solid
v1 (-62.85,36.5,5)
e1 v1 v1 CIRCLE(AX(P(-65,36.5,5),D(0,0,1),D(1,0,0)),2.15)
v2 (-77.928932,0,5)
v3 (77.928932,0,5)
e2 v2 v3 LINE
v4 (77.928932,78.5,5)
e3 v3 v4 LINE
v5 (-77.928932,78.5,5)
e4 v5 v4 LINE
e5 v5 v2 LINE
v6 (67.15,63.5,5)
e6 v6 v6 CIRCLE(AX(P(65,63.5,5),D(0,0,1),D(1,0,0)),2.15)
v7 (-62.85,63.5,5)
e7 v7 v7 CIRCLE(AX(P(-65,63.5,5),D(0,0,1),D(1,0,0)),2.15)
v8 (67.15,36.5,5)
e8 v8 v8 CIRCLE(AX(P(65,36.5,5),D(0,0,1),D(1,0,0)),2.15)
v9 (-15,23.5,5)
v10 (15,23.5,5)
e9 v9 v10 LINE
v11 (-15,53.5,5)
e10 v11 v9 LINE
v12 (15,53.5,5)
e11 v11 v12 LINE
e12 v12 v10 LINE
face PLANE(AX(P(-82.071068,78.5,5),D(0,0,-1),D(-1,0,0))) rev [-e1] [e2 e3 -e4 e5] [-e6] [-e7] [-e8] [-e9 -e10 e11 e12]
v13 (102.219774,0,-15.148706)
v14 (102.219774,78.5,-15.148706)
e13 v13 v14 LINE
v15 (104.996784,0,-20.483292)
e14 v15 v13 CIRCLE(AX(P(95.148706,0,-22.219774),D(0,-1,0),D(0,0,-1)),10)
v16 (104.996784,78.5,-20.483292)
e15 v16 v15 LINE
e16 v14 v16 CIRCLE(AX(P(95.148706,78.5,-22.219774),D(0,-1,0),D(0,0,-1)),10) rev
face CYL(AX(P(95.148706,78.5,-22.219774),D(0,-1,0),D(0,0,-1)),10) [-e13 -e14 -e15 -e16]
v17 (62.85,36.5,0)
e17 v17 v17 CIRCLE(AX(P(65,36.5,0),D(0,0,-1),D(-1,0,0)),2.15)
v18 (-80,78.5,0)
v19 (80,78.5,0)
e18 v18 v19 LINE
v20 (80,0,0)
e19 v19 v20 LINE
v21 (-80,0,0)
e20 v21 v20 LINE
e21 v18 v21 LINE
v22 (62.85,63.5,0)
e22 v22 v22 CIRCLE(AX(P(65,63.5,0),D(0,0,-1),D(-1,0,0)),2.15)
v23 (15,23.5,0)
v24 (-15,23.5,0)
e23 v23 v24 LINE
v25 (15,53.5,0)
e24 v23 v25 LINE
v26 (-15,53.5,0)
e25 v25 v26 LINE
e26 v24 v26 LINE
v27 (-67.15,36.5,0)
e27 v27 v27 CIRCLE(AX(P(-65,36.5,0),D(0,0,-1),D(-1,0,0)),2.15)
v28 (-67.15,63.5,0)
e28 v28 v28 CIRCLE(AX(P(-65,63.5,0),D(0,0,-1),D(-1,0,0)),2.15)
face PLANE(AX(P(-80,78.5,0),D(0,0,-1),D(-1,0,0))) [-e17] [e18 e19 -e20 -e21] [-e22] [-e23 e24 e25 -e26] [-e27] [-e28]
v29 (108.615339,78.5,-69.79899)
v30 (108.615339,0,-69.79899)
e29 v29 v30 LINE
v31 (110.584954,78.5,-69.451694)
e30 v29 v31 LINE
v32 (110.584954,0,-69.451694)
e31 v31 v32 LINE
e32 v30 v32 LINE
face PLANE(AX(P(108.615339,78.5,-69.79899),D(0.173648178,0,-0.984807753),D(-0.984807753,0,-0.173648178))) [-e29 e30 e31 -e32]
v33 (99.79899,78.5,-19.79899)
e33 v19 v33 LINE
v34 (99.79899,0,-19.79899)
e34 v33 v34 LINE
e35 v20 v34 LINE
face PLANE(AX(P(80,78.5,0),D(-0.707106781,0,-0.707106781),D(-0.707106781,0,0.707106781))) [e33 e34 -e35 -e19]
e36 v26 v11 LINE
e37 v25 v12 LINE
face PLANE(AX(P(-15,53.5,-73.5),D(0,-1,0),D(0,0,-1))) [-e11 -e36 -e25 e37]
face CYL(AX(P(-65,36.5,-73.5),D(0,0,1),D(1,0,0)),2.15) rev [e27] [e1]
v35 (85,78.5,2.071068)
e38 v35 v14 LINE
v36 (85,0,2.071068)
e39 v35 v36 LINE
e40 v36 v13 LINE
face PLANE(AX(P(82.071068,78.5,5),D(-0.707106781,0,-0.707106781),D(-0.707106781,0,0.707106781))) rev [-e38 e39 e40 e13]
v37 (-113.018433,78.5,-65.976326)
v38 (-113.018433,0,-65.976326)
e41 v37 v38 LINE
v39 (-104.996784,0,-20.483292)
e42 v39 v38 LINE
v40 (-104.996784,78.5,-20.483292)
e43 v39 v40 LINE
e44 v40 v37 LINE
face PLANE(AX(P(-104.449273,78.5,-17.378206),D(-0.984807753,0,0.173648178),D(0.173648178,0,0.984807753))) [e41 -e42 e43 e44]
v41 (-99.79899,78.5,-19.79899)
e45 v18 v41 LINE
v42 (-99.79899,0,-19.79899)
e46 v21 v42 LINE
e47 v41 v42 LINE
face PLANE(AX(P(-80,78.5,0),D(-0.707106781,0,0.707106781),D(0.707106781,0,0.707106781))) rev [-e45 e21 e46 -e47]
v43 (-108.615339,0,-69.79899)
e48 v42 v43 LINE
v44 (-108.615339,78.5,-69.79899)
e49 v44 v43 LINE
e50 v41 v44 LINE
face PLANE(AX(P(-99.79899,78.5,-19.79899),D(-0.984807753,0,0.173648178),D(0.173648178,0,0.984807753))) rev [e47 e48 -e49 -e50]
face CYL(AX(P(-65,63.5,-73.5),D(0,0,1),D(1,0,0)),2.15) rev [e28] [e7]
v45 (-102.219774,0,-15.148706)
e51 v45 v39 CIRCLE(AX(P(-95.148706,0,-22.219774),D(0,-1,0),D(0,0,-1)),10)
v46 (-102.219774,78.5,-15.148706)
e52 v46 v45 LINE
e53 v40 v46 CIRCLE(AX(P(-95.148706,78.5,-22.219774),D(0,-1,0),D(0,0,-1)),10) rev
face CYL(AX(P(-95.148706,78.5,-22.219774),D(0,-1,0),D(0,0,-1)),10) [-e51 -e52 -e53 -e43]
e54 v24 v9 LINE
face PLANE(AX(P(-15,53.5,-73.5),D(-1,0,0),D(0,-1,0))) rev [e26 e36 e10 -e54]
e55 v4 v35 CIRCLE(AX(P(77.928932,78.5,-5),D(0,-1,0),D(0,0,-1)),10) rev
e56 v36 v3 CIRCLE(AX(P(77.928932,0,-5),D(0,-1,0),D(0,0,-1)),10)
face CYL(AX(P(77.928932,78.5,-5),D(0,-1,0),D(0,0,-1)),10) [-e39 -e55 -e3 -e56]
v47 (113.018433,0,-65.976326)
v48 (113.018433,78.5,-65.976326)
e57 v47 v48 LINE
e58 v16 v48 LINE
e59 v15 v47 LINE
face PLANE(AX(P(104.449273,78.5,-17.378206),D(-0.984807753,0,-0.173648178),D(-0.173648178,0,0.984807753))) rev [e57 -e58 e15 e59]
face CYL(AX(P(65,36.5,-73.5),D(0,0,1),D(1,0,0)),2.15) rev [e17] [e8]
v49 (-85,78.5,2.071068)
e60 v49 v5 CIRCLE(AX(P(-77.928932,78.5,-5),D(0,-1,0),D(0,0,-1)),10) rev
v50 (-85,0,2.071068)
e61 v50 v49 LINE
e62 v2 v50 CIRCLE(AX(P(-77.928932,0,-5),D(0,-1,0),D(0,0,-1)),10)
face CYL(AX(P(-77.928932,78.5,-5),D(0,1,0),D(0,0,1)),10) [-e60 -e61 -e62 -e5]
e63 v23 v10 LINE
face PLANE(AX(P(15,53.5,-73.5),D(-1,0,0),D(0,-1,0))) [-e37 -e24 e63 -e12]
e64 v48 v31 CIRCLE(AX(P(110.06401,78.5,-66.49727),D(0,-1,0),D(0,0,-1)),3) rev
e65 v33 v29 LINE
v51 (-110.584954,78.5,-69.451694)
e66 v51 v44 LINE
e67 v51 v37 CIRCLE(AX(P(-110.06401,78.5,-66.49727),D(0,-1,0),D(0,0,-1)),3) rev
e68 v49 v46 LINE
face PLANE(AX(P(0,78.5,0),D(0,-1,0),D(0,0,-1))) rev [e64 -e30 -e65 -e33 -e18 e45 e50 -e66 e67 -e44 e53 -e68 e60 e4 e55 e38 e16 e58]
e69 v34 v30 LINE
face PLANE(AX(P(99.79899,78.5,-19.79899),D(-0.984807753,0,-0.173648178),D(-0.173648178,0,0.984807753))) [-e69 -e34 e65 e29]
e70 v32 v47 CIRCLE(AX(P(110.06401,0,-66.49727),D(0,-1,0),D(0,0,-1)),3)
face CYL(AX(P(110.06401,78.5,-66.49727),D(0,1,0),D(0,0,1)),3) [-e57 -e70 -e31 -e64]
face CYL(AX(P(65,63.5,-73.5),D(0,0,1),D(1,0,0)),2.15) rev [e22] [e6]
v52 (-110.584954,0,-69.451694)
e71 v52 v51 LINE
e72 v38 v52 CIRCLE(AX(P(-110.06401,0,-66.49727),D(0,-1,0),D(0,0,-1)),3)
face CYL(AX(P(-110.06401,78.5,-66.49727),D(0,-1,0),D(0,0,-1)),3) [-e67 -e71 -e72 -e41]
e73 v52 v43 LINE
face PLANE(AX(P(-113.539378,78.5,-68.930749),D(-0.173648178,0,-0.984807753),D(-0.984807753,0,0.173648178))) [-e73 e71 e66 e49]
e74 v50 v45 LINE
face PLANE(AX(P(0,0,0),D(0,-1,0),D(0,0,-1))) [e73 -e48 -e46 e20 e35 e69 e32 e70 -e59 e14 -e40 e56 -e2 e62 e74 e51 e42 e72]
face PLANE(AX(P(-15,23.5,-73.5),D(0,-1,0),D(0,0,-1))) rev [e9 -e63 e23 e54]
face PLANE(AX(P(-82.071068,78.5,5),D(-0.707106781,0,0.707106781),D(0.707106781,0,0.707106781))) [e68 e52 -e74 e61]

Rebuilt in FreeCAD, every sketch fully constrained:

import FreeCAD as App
import Part
import Sketcher

V = App.Vector
Q = App.Units.Quantity


def edges_at(feature, points):
    """Names of the edges that pass closest to the given points."""
    edges = feature.Shape.Edges
    near = lambda p: min(range(len(edges)), key=lambda i: edges[i].distToShape(Part.Vertex(*p))[0])
    return sorted({f"Edge{near(p) + 1}" for p in points})

doc = App.newDocument("Part")
body = doc.addObject("PartDesign::Body", "Body")

sketch1 = body.newObject("Sketcher::SketchObject", "Sketch")
sketch1.AttachmentSupport = (doc.getObject("XZ_Plane"), [""])
sketch1.MapMode = "FlatFace"
sketch1.addGeometry([
    Part.LineSegment(V(80, 0, 0), V(-80, 0, 0)),
    Part.LineSegment(V(-80, 0, 0), V(-99.8, -19.8, 0)),
    Part.LineSegment(V(-99.8, -19.8, 0), V(-108.6, -69.8, 0)),
    Part.LineSegment(V(-108.6, -69.8, 0), V(-113.5, -68.9, 0)),
    Part.LineSegment(V(-113.5, -68.9, 0), V(-104.4, -17.4, 0)),
    Part.LineSegment(V(-104.4, -17.4, 0), V(-82.1, 5, 0)),
    Part.LineSegment(V(-82.1, 5, 0), V(82.1, 5, 0)),
    Part.LineSegment(V(82.1, 5, 0), V(104.4, -17.4, 0)),
    Part.LineSegment(V(104.4, -17.4, 0), V(113.5, -68.9, 0)),
    Part.LineSegment(V(113.5, -68.9, 0), V(108.6, -69.8, 0)),
    Part.LineSegment(V(108.6, -69.8, 0), V(99.8, -19.8, 0)),
    Part.LineSegment(V(99.8, -19.8, 0), V(80, 0, 0)),
], False)
sketch1.addConstraint([
    Sketcher.Constraint("Coincident", 0, 2, 1, 1),
    Sketcher.Constraint("Coincident", 1, 2, 2, 1),
    Sketcher.Constraint("Coincident", 2, 2, 3, 1),
    Sketcher.Constraint("Coincident", 3, 2, 4, 1),
    Sketcher.Constraint("Coincident", 4, 2, 5, 1),
    Sketcher.Constraint("Coincident", 5, 2, 6, 1),
    Sketcher.Constraint("Coincident", 6, 2, 7, 1),
    Sketcher.Constraint("Coincident", 7, 2, 8, 1),
    Sketcher.Constraint("Coincident", 8, 2, 9, 1),
    Sketcher.Constraint("Coincident", 9, 2, 10, 1),
    Sketcher.Constraint("Coincident", 10, 2, 11, 1),
    Sketcher.Constraint("Coincident", 11, 2, 0, 1),
    Sketcher.Constraint("Horizontal", 0),
    Sketcher.Constraint("Horizontal", 6),
    Sketcher.Constraint("Symmetric", 0, 2, 11, 2, -1, 1),
    Sketcher.Constraint("Symmetric", 4, 2, 7, 2, -2),
    Sketcher.Constraint("Symmetric", 3, 2, 8, 2, -2),
    Sketcher.Constraint("Symmetric", 2, 2, 9, 2, -2),
    Sketcher.Constraint("Symmetric", 1, 2, 10, 2, -2),
    Sketcher.Constraint("Perpendicular", 2, 3),
    Sketcher.Constraint("Perpendicular", 3, 4),
    Sketcher.Constraint("Parallel", 1, 5),
    Sketcher.Constraint("Perpendicular", 5, 7),
    Sketcher.Constraint("Parallel", 7, 11),
    Sketcher.Constraint("DistanceX", 0, 2, 0, 1, Q("160 mm")),
    Sketcher.Constraint("Angle", 2, Q("-100 deg")),
    Sketcher.Constraint("Distance", 1, Q("28 mm")),
    Sketcher.Constraint("Distance", 3, Q("5 mm")),
    Sketcher.Constraint("DistanceY", -1, 1, 5, 2, Q("5 mm")),
    Sketcher.Constraint("DistanceY", 2, 2, 1, 2, Q("50 mm")),
    Sketcher.Constraint("Distance", 5, Q("31.647562 mm")),
])
pad1 = body.newObject("PartDesign::Pad", "Pad")
pad1.Profile = sketch1
pad1.Length = 78.5
pad1.Reversed = True
doc.recompute()

fillet = body.newObject("PartDesign::Fillet", "Fillet")
fillet.Base = (pad1, edges_at(pad1, [(82.071, 39.25, 5)]))
fillet.Radius = 10
doc.recompute()

fillet2 = body.newObject("PartDesign::Fillet", "Fillet001")
fillet2.Base = (fillet, edges_at(fillet, [(104.449, 39.25, -17.378)]))
fillet2.Radius = 10
doc.recompute()

fillet3 = body.newObject("PartDesign::Fillet", "Fillet002")
fillet3.Base = (fillet2, edges_at(fillet2, [(-104.449, 39.25, -17.378), (-82.071, 39.25, 5)]))
fillet3.Radius = 10
doc.recompute()

fillet4 = body.newObject("PartDesign::Fillet", "Fillet003")
fillet4.Base = (fillet3, edges_at(fillet3, [(-113.539, 39.25, -68.931), (113.539, 39.25, -68.931)]))
fillet4.Radius = 3

sketch2 = body.newObject("Sketcher::SketchObject", "Sketch001")
sketch2.AttachmentSupport = (doc.getObject("XY_Plane"), [""])
sketch2.MapMode = "FlatFace"
sketch2.AttachmentOffset = App.Placement(V(0, 0, 5), App.Rotation())
sketch2.addGeometry([
    Part.LineSegment(V(-15, 54, 0), V(-15, 24, 0)),
    Part.LineSegment(V(-15, 24, 0), V(15, 24, 0)),
    Part.LineSegment(V(15, 24, 0), V(15, 54, 0)),
    Part.LineSegment(V(15, 54, 0), V(-15, 54, 0)),
], False)
sketch2.addConstraint([
    Sketcher.Constraint("Coincident", 0, 2, 1, 1),
    Sketcher.Constraint("Coincident", 1, 2, 2, 1),
    Sketcher.Constraint("Coincident", 2, 2, 3, 1),
    Sketcher.Constraint("Coincident", 3, 2, 0, 1),
    Sketcher.Constraint("Vertical", 0),
    Sketcher.Constraint("Horizontal", 1),
    Sketcher.Constraint("Vertical", 2),
    Sketcher.Constraint("Horizontal", 3),
    Sketcher.Constraint("Equal", 3, 0),
    Sketcher.Constraint("DistanceX", 1, 1, 1, 2, Q("30 mm")),
    Sketcher.Constraint("DistanceX", 0, 2, -1, 1, Q("15 mm")),
    Sketcher.Constraint("DistanceY", -1, 1, 0, 2, Q("23.5 mm")),
])
pocket1 = body.newObject("PartDesign::Pocket", "Pocket")
pocket1.Profile = sketch2
pocket1.Length = 78.5

sketch3 = body.newObject("Sketcher::SketchObject", "Sketch002")
sketch3.AttachmentSupport = (doc.getObject("XY_Plane"), [""])
sketch3.MapMode = "FlatFace"
sketch3.AttachmentOffset = App.Placement(V(0, 0, 5), App.Rotation())
sketch3.addGeometry([
    Part.Circle(V(65, 36.5, 0), V(0, 0, 1), 2.1),
    Part.Circle(V(65, 63.5, 0), V(0, 0, 1), 2.1),
    Part.Circle(V(-65, 63.5, 0), V(0, 0, 1), 2.1),
    Part.Circle(V(-65, 36.5, 0), V(0, 0, 1), 2.1),
], False)
sketch3.addConstraint([
    Sketcher.Constraint("Equal", 0, 1),
    Sketcher.Constraint("Equal", 1, 2),
    Sketcher.Constraint("Equal", 2, 3),
    Sketcher.Constraint("Symmetric", 1, 3, 2, 3, -2),
    Sketcher.Constraint("Symmetric", 0, 3, 3, 3, -2),
    Sketcher.Constraint("Vertical", 0, 3, 1, 3),
    Sketcher.Constraint("Diameter", 0, Q("4.3 mm")),
    Sketcher.Constraint("DistanceX", -1, 1, 0, 3, Q("65 mm")),
    Sketcher.Constraint("DistanceY", 0, 3, 1, 3, Q("27 mm")),
    Sketcher.Constraint("DistanceY", -1, 1, 0, 3, Q("36.5 mm")),
])
pocket2 = body.newObject("PartDesign::Pocket", "Pocket001")
pocket2.Profile = sketch3
pocket2.Length = 78.5

doc.recompute()
